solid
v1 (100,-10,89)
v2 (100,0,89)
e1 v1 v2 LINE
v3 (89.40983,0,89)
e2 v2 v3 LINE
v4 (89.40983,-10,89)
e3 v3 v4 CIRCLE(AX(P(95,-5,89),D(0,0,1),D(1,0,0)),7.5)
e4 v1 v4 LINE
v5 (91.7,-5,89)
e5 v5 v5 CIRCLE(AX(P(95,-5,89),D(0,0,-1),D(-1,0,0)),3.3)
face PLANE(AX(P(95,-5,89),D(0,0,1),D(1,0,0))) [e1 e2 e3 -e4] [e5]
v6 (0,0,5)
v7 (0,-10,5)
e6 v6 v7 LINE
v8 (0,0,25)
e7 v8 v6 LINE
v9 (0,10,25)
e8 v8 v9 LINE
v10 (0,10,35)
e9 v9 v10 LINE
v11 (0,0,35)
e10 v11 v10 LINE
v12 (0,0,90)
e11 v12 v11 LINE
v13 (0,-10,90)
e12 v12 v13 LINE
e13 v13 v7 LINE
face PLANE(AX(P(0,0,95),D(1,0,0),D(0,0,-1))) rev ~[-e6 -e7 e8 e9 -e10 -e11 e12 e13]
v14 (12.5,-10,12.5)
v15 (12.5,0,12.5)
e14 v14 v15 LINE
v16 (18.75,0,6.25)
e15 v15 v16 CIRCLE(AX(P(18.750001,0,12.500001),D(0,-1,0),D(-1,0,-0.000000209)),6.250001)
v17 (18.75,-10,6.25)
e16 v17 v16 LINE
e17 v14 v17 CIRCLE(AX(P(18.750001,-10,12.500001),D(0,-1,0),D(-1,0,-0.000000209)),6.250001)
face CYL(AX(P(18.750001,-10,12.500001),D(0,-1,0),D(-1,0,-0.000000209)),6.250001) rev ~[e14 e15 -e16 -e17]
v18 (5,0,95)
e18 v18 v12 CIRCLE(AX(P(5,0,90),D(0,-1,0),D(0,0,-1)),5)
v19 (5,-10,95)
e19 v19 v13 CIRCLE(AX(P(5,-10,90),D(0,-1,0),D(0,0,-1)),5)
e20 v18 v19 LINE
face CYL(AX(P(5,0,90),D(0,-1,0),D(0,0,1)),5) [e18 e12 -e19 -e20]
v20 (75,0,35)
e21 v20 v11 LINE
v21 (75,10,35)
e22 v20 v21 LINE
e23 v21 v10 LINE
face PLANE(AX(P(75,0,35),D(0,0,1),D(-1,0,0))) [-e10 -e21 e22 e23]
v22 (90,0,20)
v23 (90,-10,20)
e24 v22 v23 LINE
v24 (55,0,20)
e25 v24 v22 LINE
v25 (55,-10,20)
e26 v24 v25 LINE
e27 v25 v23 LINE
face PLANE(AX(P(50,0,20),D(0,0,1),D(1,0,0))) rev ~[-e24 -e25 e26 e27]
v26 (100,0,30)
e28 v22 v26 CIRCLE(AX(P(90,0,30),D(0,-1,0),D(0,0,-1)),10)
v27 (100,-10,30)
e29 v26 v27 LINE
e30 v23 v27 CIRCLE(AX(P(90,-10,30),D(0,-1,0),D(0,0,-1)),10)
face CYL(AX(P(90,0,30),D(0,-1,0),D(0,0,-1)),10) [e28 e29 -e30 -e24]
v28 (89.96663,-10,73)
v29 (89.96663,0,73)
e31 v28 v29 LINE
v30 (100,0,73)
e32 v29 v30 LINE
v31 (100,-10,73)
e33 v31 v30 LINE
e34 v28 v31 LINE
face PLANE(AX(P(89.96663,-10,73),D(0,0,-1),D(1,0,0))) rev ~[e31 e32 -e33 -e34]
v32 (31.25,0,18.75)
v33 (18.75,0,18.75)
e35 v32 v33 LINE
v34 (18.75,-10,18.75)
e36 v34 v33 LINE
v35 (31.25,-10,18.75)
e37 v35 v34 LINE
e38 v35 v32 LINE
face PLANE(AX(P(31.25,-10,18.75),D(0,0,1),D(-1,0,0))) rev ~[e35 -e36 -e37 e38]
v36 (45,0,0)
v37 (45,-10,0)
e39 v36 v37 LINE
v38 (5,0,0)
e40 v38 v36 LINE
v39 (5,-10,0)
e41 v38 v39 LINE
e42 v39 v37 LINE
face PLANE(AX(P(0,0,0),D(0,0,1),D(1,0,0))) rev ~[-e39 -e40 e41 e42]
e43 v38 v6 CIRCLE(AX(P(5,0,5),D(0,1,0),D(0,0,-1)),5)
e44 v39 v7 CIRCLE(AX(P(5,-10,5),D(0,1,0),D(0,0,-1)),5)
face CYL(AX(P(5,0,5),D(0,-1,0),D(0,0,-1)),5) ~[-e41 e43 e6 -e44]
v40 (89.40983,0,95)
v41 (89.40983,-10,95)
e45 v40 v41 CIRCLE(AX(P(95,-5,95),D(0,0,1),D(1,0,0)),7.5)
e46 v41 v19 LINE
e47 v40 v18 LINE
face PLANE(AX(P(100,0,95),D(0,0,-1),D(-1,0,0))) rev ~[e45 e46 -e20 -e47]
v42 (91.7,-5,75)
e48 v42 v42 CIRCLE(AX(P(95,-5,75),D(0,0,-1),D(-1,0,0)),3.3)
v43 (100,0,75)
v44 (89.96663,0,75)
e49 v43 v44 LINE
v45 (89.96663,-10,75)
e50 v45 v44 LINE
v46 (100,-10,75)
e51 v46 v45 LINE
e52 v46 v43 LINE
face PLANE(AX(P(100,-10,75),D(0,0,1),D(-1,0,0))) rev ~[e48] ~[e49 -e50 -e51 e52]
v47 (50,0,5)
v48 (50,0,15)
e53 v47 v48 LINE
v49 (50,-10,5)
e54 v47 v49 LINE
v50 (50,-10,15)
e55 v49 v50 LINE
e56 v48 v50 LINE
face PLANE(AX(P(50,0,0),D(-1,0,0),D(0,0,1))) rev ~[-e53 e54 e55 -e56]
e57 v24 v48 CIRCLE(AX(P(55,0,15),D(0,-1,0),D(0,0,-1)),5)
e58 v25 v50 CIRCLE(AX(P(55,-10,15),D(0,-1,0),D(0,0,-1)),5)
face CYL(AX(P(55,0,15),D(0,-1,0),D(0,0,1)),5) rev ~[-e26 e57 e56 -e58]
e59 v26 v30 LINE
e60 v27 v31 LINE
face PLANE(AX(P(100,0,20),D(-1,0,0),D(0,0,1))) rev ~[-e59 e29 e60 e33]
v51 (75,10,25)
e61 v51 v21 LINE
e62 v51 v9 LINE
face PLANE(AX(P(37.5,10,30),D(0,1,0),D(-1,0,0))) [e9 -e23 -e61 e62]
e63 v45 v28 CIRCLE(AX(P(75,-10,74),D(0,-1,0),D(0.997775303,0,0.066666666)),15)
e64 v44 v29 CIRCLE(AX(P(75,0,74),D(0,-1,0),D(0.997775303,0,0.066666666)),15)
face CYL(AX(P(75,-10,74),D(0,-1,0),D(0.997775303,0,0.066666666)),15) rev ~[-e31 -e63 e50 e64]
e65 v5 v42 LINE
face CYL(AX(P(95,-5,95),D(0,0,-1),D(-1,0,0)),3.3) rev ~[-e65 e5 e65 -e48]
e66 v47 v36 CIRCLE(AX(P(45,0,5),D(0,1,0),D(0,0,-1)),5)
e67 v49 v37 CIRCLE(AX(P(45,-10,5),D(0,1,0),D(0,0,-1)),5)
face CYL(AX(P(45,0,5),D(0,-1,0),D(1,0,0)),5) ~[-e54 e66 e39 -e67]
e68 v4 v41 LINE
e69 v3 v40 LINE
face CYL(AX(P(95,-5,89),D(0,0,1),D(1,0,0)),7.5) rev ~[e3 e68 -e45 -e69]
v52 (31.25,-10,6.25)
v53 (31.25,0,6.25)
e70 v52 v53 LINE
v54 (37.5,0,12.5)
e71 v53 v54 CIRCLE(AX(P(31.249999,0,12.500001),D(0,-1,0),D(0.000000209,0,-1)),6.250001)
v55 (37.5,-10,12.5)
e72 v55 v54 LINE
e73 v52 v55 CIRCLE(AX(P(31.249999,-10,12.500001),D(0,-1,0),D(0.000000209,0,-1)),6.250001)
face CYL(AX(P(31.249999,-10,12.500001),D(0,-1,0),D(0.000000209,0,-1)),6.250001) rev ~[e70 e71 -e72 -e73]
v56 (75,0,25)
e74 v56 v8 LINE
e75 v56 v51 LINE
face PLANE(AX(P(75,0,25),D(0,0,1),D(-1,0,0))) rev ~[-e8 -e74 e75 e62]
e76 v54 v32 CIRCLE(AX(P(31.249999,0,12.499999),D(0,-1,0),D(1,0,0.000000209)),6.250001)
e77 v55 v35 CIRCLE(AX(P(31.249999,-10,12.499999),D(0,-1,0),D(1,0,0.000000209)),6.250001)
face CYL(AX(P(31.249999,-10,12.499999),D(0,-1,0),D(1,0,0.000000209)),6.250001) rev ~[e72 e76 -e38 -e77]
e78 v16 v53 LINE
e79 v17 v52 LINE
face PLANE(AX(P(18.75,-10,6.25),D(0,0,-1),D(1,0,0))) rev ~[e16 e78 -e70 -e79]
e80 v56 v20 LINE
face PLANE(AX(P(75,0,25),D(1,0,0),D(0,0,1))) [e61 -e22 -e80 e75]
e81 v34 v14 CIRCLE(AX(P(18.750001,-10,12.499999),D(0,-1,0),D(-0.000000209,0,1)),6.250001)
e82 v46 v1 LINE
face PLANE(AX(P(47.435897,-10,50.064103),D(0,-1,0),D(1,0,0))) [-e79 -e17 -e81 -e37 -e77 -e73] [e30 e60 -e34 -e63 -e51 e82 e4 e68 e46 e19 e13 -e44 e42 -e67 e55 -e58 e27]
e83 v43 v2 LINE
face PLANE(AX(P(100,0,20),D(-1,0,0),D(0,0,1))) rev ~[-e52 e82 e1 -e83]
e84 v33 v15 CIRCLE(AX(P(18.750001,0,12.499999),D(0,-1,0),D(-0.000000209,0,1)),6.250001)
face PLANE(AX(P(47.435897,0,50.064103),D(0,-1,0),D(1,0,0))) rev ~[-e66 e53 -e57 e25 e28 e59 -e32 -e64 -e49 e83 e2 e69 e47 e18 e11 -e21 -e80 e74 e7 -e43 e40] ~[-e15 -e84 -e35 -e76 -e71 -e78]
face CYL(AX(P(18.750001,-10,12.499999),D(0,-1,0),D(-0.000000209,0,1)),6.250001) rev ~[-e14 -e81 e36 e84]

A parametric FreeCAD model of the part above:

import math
import FreeCAD as App
import Part
import Sketcher

V = App.Vector
Q = App.Units.Quantity


def edges_at(feature, points):
    """Names of the edges that pass closest to the given points."""
    edges = feature.Shape.Edges
    near = lambda p: min(range(len(edges)), key=lambda i: edges[i].distToShape(Part.Vertex(*p))[0])
    return sorted({f"Edge{near(p) + 1}" for p in points})

doc = App.newDocument("Part")
body = doc.addObject("PartDesign::Body", "Body")

# Sketch on XZ plane
sketch1 = doc.addObject("Sketcher::SketchObject", "Sketch")
body.addObject(sketch1)
sketch1.AttachmentSupport = (doc.XZ_Plane, [""])
sketch1.MapMode = "FlatFace"
sketch1.addGeometry([
    Part.LineSegment(V(0, 95, 0), V(0, 0, 0)),  # 0
    Part.LineSegment(V(0, 0, 0), V(50, 0, 0)),  # 1
    Part.LineSegment(V(50, 0, 0), V(50, 20, 0)),  # 2
    Part.LineSegment(V(50, 20, 0), V(100, 20, 0)),  # 3
    Part.LineSegment(V(100, 20, 0), V(100, 95, 0)),  # 4
    Part.LineSegment(V(100, 95, 0), V(0, 95, 0)),  # 5
], False)
sketch1.addConstraint([
    Sketcher.Constraint("Coincident", 0, 2, 1, 1),
    Sketcher.Constraint("Coincident", 1, 2, 2, 1),
    Sketcher.Constraint("Coincident", 2, 2, 3, 1),
    Sketcher.Constraint("Coincident", 3, 2, 4, 1),
    Sketcher.Constraint("Coincident", 4, 2, 5, 1),
    Sketcher.Constraint("Coincident", 5, 2, 0, 1),
    Sketcher.Constraint("Vertical", 0),
    Sketcher.Constraint("Horizontal", 1),
    Sketcher.Constraint("Vertical", 2),
    Sketcher.Constraint("Horizontal", 3),
    Sketcher.Constraint("Vertical", 4),
    Sketcher.Constraint("Horizontal", 5),
    Sketcher.Constraint("Coincident", 0, 2, -1, 1),
    Sketcher.Constraint("Equal", 1, 3),
    Sketcher.Constraint("DistanceX", 1, 1, 1, 2, Q("50 mm")),
    Sketcher.Constraint("DistanceY", 0, 2, 0, 1, Q("95 mm")),
    Sketcher.Constraint("DistanceY", 2, 1, 2, 2, Q("20 mm")),
])
pad1 = doc.addObject("PartDesign::Pad", "Pad")
body.addObject(pad1)
pad1.Profile = sketch1
pad1.Length = 10
doc.recompute()

fillet = doc.addObject("PartDesign::Fillet", "Fillet")
body.addObject(fillet)
fillet.Base = (pad1, edges_at(pad1, [(100, -5, 20)]))
fillet.Radius = 10

# Sketch on XZ plane
sketch2 = doc.addObject("Sketcher::SketchObject", "Sketch001")
body.addObject(sketch2)
sketch2.AttachmentSupport = (doc.XZ_Plane, [""])
sketch2.MapMode = "FlatFace"
sketch2.AttachmentOffset = App.Placement(V(0, 0, 10), App.Rotation())
sketch2.addGeometry([
    Part.ArcOfCircle(Part.Circle(V(18.750001, 12.500001, 0), V(0, 0, 1), 6.250001), math.radians(-179.999988), math.radians(-90.000012)),  # 0
    Part.LineSegment(V(18.75, 6.25, 0), V(31.25, 6.25, 0)),  # 1
    Part.ArcOfCircle(Part.Circle(V(31.249999, 12.500001, 0), V(0, 0, 1), 6.250001), math.radians(-89.999988), math.radians(-0.000012)),  # 2
    Part.ArcOfCircle(Part.Circle(V(31.249999, 12.499999, 0), V(0, 0, 1), 6.250001), math.radians(0.000012), math.radians(89.999988)),  # 3
    Part.LineSegment(V(31.25, 18.75, 0), V(18.75, 18.75, 0)),  # 4
    Part.ArcOfCircle(Part.Circle(V(18.750001, 12.499999, 0), V(0, 0, 1), 6.250001), math.radians(90.000012), math.radians(179.999988)),  # 5
], False)
sketch2.addConstraint([
    Sketcher.Constraint("Tangent", 0, 2, 1, 1),
    Sketcher.Constraint("Tangent", 1, 2, 2, 1),
    Sketcher.Constraint("Tangent", 2, 2, 3, 1),
    Sketcher.Constraint("Tangent", 3, 2, 4, 1),
    Sketcher.Constraint("Tangent", 4, 2, 5, 1),
    Sketcher.Constraint("Tangent", 5, 2, 0, 1),
    Sketcher.Constraint("Horizontal", 1),
    Sketcher.Constraint("Horizontal", 4),
    Sketcher.Constraint("Equal", 0, 2),
    Sketcher.Constraint("Equal", 2, 3),
    Sketcher.Constraint("Horizontal", 5, 3, 2, 2),
    Sketcher.Constraint("Horizontal", 2, 2, 5, 2),
    Sketcher.Constraint("Radius", 0, Q("6.250001 mm")),
    Sketcher.Constraint("DistanceX", 1, 1, 1, 2, Q("12.5 mm")),
    Sketcher.Constraint("DistanceY", -1, 1, 0, 3, Q("12.500001 mm")),
    Sketcher.Constraint("DistanceX", -1, 1, 2, 2, Q("37.5 mm")),
])
pocket1 = doc.addObject("PartDesign::Pocket", "Pocket")
body.addObject(pocket1)
pocket1.Profile = sketch2
pocket1.Type = "ThroughAll"
doc.recompute()

fillet2 = doc.addObject("PartDesign::Fillet", "Fillet001")
body.addObject(fillet2)
fillet2.Base = (pocket1, edges_at(pocket1, [
    (50, -5, 20),
    (50, -5, 0),
    (0, -5, 0),
    (0, -5, 95),
]))
fillet2.Radius = 5

# Sketch on XZ plane
sketch3 = doc.addObject("Sketcher::SketchObject", "Sketch002")
body.addObject(sketch3)
sketch3.AttachmentSupport = (doc.XZ_Plane, [""])
sketch3.MapMode = "FlatFace"
sketch3.addGeometry([
    Part.LineSegment(V(75, 35, 0), V(75, 25, 0)),
    Part.LineSegment(V(75, 25, 0), V(0, 25, 0)),
    Part.LineSegment(V(0, 25, 0), V(0, 35, 0)),
    Part.LineSegment(V(0, 35, 0), V(75, 35, 0)),
], False)
sketch3.addConstraint([
    Sketcher.Constraint("Coincident", 0, 2, 1, 1),
    Sketcher.Constraint("Coincident", 1, 2, 2, 1),
    Sketcher.Constraint("Coincident", 2, 2, 3, 1),
    Sketcher.Constraint("Coincident", 3, 2, 0, 1),
    Sketcher.Constraint("Vertical", 0),
    Sketcher.Constraint("Horizontal", 1),
    Sketcher.Constraint("Vertical", 2),
    Sketcher.Constraint("Horizontal", 3),
    Sketcher.Constraint("PointOnObject", 1, 2, -2),
    Sketcher.Constraint("DistanceX", 1, 2, 1, 1, Q("75 mm")),
    Sketcher.Constraint("DistanceY", 0, 2, 0, 1, Q("10 mm")),
    Sketcher.Constraint("DistanceY", -1, 1, 0, 2, Q("25 mm")),
])
pad2 = doc.addObject("PartDesign::Pad", "Pad001")
body.addObject(pad2)
pad2.Profile = sketch3
pad2.Length = 10
pad2.Reversed = True

# Sketch on XZ plane
sketch4 = doc.addObject("Sketcher::SketchObject", "Sketch003")
body.addObject(sketch4)
sketch4.AttachmentSupport = (doc.XZ_Plane, [""])
sketch4.MapMode = "FlatFace"
sketch4.AttachmentOffset = App.Placement(V(0, 0, 10), App.Rotation())
sketch4.addGeometry([
    Part.LineSegment(V(100, 75, 0), V(89.96663, 75, 0)),
    Part.ArcOfCircle(Part.Circle(V(75, 74, 0), V(0, 0, 1), 15), math.radians(3.822554), math.radians(356.177446)),
    Part.LineSegment(V(89.96663, 73, 0), V(100, 73, 0)),
    Part.LineSegment(V(100, 73, 0), V(100, 75, 0)),
], False)
sketch4.addConstraint([
    Sketcher.Constraint("Coincident", 0, 2, 1, 1),
    Sketcher.Constraint("Coincident", 1, 2, 2, 1),
    Sketcher.Constraint("Coincident", 2, 2, 3, 1),
    Sketcher.Constraint("Coincident", 3, 2, 0, 1),
    Sketcher.Constraint("Horizontal", 0),
    Sketcher.Constraint("Horizontal", 2),
    Sketcher.Constraint("Vertical", 3),
    Sketcher.Constraint("Vertical", 0, 2, 1, 2),
    Sketcher.Constraint("Radius", 1, Q("15 mm")),
    Sketcher.Constraint("DistanceY", 3, 1, 3, 2, Q("2 mm")),
    Sketcher.Constraint("DistanceX", -1, 1, 1, 3, Q("75 mm")),
    Sketcher.Constraint("DistanceY", -1, 1, 1, 3, Q("74 mm")),
    Sketcher.Constraint("DistanceX", -1, 1, 2, 2, Q("100 mm")),
])
pocket2 = doc.addObject("PartDesign::Pocket", "Pocket001")
body.addObject(pocket2)
pocket2.Profile = sketch4
pocket2.Type = "ThroughAll"

# Sketch on XY plane
sketch5 = doc.addObject("Sketcher::SketchObject", "Sketch004")
body.addObject(sketch5)
sketch5.AttachmentSupport = (doc.XY_Plane, [""])
sketch5.MapMode = "FlatFace"
sketch5.AttachmentOffset = App.Placement(V(0, 0, 95), App.Rotation())
sketch5.addGeometry(Part.Circle(V(95, -5, 0), V(0, 0, 1), 3.3), False)
sketch5.addConstraint([
    Sketcher.Constraint("Diameter", 0, Q("6.6 mm")),
    Sketcher.Constraint("DistanceX", -1, 1, 0, 3, Q("95 mm")),
    Sketcher.Constraint("DistanceY", 0, 3, -1, 1, Q("5 mm")),
])
doc.recompute()
hole = doc.addObject("PartDesign::Hole", "Hole")
body.addObject(hole)
hole.Profile = sketch5
hole.ThreadType = "None"
hole.Diameter = 6.6
hole.DepthType = "Dimension"
hole.Depth = 20
hole.DrillPoint = "Flat"
hole.HoleCutType = "Counterbore"
hole.HoleCutDiameter = 15
hole.HoleCutDepth = 6

doc.recompute()
